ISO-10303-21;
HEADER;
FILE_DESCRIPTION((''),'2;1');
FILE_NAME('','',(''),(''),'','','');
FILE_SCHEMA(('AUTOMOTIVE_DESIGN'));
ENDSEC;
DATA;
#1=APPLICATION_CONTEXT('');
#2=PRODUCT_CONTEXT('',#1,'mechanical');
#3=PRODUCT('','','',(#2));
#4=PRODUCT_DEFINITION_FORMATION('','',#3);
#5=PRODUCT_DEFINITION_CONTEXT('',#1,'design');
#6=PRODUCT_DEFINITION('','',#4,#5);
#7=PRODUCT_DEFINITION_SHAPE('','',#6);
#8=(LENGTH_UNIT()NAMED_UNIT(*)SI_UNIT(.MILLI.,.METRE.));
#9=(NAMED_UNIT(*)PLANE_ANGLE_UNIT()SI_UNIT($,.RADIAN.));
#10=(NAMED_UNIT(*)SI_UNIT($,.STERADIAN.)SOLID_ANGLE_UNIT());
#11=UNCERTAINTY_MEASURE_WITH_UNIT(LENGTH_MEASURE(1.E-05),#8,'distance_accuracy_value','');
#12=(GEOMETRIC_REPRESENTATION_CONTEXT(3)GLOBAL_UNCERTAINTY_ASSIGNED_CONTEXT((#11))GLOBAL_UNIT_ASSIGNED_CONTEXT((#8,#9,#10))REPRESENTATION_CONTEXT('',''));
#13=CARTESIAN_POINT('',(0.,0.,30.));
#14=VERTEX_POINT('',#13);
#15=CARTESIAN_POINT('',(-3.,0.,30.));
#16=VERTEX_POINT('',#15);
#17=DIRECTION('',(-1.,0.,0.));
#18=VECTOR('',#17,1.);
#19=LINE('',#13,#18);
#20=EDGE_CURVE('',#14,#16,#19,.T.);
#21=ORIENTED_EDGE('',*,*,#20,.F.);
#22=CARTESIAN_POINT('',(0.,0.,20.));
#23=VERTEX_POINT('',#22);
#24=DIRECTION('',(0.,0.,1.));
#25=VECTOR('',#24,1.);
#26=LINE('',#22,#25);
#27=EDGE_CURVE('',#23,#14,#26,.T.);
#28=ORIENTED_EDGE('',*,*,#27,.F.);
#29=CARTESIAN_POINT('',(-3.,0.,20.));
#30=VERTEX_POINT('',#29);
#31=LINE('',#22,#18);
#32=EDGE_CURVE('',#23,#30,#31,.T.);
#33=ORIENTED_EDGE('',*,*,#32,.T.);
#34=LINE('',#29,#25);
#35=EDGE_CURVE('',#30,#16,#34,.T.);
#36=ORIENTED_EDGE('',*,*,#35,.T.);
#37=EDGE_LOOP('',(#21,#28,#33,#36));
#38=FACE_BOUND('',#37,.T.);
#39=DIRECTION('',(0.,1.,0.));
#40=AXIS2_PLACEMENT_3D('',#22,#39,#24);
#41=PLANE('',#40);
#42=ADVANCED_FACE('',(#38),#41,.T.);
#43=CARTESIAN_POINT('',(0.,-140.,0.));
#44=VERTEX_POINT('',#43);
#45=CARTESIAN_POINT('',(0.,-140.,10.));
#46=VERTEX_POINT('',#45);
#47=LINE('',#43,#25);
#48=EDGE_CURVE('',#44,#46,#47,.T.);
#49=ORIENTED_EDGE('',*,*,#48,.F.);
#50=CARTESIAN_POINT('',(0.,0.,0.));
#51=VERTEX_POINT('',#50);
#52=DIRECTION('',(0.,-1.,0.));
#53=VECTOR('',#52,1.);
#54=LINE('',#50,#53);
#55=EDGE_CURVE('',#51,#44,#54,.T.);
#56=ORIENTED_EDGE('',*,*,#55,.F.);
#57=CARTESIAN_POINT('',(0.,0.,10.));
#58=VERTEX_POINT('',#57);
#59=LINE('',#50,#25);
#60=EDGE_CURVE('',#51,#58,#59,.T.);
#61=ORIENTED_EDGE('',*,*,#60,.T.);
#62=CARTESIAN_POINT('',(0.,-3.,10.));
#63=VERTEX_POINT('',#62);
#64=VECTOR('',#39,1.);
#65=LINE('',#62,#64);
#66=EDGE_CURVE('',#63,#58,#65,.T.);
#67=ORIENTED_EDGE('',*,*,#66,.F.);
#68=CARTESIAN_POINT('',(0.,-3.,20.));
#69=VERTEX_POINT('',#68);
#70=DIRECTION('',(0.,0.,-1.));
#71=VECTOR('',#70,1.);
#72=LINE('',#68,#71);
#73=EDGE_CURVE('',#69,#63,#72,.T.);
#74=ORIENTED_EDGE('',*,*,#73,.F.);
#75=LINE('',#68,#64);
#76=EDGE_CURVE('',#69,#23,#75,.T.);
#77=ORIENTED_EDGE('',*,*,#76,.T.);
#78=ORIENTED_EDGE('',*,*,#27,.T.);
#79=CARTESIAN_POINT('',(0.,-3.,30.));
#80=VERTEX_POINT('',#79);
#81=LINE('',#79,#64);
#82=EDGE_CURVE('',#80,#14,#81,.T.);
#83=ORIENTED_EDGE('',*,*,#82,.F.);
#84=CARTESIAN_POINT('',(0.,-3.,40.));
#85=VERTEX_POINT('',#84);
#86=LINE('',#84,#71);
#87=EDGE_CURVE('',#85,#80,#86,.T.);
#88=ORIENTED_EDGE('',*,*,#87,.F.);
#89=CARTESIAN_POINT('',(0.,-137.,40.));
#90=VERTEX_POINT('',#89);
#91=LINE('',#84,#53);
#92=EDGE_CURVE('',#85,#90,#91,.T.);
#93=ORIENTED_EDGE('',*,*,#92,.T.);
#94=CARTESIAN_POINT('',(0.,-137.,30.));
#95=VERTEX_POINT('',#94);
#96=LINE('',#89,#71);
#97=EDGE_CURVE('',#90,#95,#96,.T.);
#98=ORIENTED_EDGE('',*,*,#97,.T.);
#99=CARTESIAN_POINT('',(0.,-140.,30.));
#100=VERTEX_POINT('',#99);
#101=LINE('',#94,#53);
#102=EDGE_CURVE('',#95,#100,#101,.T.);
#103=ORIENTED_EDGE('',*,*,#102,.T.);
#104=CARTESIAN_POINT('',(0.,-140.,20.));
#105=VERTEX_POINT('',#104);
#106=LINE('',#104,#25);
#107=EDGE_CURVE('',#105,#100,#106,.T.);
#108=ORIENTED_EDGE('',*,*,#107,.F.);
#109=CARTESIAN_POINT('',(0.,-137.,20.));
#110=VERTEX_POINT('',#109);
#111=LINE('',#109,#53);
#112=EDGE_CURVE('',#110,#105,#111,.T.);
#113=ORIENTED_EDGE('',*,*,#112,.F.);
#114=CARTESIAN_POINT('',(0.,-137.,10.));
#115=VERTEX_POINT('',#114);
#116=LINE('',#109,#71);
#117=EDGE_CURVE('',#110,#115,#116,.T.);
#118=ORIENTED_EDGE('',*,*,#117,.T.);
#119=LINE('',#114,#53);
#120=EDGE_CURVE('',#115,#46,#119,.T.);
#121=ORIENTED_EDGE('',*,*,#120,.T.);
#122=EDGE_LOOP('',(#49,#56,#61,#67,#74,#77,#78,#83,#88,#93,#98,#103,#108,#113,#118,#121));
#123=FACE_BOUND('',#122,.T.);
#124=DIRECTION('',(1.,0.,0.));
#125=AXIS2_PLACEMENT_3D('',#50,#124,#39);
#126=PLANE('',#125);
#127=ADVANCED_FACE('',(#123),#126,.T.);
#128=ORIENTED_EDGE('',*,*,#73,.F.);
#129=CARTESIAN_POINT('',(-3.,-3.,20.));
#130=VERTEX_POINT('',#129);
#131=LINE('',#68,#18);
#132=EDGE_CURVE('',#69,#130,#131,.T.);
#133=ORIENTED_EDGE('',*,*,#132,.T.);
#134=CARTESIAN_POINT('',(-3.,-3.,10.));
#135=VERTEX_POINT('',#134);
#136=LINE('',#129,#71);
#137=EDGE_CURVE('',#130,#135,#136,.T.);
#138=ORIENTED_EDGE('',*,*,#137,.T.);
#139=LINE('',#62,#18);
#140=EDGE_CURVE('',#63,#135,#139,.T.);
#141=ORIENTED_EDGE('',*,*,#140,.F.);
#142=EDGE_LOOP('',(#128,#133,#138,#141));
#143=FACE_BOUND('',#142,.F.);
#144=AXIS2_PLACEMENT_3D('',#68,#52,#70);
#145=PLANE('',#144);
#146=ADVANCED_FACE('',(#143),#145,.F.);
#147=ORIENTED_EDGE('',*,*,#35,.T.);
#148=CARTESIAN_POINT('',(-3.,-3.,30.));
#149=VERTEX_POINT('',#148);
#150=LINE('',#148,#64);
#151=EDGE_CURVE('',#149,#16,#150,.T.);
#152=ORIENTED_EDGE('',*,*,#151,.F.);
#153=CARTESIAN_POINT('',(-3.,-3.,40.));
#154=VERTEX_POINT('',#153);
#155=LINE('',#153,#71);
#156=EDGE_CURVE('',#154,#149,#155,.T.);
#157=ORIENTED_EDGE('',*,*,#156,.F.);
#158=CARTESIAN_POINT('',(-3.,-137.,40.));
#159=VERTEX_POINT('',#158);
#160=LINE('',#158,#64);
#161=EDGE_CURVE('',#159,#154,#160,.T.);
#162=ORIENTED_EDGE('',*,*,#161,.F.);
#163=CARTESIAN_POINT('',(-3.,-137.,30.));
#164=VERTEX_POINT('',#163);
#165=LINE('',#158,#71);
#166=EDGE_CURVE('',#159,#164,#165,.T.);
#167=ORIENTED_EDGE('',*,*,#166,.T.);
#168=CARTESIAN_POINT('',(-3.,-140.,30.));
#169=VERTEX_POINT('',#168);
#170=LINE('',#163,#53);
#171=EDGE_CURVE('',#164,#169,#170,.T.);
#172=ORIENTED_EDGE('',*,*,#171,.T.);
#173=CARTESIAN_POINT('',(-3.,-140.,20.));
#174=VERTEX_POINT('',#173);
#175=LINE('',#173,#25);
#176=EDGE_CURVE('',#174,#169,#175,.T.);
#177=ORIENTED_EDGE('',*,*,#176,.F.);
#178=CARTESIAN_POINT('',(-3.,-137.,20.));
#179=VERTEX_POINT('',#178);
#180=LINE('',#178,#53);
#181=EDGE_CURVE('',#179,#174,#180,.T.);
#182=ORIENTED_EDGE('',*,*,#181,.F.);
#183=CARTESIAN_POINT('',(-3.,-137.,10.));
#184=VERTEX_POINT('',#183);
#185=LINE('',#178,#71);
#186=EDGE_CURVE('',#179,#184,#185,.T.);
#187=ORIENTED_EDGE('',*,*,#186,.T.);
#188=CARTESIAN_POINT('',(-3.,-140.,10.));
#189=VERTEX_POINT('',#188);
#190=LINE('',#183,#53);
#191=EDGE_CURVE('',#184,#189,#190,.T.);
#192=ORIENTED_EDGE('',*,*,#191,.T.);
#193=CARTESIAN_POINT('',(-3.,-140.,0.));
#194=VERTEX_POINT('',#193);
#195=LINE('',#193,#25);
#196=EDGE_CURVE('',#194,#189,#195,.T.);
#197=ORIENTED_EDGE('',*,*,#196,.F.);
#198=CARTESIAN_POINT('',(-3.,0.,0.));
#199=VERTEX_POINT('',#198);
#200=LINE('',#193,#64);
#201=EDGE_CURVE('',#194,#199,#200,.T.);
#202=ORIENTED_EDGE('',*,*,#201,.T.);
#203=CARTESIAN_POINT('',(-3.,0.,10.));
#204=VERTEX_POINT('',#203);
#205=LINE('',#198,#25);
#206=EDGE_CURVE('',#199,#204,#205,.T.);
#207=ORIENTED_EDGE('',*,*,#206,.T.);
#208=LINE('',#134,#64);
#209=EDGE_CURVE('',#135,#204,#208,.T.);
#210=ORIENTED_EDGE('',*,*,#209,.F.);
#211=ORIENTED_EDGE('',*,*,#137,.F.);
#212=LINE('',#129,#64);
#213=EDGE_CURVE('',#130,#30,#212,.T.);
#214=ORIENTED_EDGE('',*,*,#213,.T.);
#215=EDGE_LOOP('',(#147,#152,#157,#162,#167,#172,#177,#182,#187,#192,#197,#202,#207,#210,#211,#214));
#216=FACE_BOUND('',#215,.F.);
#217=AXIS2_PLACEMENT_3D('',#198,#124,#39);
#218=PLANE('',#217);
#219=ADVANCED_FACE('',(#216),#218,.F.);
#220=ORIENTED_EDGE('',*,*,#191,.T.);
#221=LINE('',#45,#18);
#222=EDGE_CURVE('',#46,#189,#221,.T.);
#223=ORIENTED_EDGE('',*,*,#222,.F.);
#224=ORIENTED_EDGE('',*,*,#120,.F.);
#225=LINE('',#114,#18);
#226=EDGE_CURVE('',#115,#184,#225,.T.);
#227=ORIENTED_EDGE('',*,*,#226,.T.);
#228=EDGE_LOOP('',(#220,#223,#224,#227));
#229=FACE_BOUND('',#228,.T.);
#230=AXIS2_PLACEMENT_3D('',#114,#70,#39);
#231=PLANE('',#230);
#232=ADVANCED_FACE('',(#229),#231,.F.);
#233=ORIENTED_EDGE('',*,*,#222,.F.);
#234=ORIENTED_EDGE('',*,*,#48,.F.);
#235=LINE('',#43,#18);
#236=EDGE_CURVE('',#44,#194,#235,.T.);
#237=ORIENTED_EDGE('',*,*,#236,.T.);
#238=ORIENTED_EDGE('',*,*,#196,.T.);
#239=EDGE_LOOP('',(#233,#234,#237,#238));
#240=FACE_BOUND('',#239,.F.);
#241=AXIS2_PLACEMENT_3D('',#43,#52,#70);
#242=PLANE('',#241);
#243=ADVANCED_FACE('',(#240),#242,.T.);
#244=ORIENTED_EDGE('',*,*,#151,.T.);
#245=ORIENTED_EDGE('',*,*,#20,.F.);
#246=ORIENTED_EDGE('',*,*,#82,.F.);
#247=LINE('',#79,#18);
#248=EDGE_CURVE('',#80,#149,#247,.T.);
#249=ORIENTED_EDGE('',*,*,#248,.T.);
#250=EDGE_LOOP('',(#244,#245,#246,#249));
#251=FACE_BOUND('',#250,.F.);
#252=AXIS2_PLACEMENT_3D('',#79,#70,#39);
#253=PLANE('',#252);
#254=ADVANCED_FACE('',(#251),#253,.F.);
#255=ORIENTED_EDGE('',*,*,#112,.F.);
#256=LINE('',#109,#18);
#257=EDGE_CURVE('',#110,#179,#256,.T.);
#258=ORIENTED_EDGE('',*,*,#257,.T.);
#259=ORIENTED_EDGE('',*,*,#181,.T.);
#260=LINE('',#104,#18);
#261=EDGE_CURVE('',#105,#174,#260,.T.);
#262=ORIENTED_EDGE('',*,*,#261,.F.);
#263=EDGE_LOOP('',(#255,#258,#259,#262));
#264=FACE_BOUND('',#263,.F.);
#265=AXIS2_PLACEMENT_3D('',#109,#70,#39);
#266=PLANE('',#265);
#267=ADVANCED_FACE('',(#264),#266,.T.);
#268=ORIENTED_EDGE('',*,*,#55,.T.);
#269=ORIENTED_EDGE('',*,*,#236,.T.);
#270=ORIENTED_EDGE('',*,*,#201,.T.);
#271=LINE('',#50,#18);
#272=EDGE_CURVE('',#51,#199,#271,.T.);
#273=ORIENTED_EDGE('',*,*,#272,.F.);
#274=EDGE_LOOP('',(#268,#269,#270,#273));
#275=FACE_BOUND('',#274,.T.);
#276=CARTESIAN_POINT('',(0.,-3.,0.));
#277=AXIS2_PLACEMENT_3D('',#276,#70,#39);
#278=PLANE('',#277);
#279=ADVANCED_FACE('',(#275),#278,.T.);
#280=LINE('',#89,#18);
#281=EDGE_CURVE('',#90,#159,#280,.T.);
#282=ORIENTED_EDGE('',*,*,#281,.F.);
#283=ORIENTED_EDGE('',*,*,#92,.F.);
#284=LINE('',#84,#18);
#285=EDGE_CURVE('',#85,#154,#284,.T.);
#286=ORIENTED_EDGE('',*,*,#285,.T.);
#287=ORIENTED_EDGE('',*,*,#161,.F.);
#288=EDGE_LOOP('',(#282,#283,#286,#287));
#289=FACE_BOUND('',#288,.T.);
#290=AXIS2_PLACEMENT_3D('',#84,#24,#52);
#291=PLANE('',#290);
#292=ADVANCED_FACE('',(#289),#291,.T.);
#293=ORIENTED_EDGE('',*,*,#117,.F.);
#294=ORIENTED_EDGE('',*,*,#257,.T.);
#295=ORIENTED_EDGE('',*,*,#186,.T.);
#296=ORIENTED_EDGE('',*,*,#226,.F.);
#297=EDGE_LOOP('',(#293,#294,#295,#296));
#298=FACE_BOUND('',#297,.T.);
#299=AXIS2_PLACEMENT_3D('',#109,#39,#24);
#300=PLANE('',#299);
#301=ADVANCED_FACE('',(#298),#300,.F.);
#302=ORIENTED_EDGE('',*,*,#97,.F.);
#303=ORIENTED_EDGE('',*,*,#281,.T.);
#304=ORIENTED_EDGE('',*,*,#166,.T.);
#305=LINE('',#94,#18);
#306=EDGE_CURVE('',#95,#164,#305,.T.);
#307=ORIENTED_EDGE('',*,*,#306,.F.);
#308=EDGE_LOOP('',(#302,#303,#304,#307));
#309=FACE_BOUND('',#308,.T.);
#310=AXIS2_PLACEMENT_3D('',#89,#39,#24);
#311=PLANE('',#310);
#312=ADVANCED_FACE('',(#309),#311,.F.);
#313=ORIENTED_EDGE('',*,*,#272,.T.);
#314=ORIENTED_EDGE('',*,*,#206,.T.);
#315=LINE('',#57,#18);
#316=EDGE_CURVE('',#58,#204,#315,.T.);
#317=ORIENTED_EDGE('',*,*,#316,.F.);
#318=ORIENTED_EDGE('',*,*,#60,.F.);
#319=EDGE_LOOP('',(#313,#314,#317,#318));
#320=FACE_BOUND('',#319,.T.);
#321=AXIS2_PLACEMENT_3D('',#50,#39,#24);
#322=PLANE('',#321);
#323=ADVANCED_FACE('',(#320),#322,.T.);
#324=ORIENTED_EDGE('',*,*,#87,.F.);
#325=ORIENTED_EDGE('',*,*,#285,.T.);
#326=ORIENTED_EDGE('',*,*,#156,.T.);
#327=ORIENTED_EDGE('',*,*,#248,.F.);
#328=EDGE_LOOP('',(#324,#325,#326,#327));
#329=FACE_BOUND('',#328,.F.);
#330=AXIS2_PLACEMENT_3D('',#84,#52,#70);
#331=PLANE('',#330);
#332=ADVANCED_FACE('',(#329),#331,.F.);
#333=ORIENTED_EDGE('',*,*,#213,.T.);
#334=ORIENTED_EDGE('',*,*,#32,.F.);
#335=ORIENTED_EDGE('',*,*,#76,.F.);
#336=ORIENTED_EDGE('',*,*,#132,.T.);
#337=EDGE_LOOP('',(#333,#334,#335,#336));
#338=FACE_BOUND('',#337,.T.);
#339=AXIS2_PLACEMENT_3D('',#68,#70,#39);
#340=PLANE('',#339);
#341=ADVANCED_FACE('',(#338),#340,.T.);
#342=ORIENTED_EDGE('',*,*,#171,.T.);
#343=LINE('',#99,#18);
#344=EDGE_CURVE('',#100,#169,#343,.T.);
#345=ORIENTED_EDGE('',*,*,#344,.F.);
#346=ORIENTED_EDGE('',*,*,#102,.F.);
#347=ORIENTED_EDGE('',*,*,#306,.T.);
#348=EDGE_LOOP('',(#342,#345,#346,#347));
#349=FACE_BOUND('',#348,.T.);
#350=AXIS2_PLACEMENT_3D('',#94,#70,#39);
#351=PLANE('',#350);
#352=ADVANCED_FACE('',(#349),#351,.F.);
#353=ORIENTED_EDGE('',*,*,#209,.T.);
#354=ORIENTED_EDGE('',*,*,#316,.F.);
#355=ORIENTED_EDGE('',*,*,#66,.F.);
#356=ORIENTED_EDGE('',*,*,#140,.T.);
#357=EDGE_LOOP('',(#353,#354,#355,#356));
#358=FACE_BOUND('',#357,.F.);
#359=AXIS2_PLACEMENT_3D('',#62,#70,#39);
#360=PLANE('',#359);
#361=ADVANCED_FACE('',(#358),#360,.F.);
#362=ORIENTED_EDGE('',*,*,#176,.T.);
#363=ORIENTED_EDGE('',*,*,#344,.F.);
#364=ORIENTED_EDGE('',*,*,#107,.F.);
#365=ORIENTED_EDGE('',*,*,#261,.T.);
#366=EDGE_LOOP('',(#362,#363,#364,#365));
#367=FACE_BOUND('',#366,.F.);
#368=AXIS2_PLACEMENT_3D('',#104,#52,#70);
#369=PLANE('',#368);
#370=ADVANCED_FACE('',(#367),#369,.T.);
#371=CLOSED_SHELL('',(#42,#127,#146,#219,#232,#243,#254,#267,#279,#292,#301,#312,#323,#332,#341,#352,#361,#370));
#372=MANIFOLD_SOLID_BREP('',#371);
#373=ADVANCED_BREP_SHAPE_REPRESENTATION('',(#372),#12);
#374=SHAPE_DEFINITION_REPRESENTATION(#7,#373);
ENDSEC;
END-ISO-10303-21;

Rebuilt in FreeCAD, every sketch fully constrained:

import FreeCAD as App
import Part
import Sketcher

V = App.Vector
Q = App.Units.Quantity

doc = App.newDocument("Part")
body = doc.addObject("PartDesign::Body", "Body")

# Sketch on YZ plane
sketch1 = doc.addObject("Sketcher::SketchObject", "Sketch")
body.addObject(sketch1)
sketch1.AttachmentSupport = (doc.YZ_Plane, [""])
sketch1.MapMode = "FlatFace"
sketch1.addGeometry([
    Part.LineSegment(V(0, 0, 0), V(0, 10, 0)),  # 0
    Part.LineSegment(V(0, 10, 0), V(-3, 10, 0)),  # 1
    Part.LineSegment(V(-3, 10, 0), V(-3, 20, 0)),  # 2
    Part.LineSegment(V(-3, 20, 0), V(0, 20, 0)),  # 3
    Part.LineSegment(V(0, 20, 0), V(0, 30, 0)),  # 4
    Part.LineSegment(V(0, 30, 0), V(-3, 30, 0)),  # 5
    Part.LineSegment(V(-3, 30, 0), V(-3, 40, 0)),  # 6
    Part.LineSegment(V(-3, 40, 0), V(-70, 40, 0)),  # 7
    Part.LineSegment(V(-70, 40, 0), V(-70, 0, 0)),  # 8
    Part.LineSegment(V(-70, 0, 0), V(0, 0, 0)),  # 9
], False)
sketch1.addConstraint([
    Sketcher.Constraint("Coincident", 0, 2, 1, 1),
    Sketcher.Constraint("Coincident", 1, 2, 2, 1),
    Sketcher.Constraint("Coincident", 2, 2, 3, 1),
    Sketcher.Constraint("Coincident", 3, 2, 4, 1),
    Sketcher.Constraint("Coincident", 4, 2, 5, 1),
    Sketcher.Constraint("Coincident", 5, 2, 6, 1),
    Sketcher.Constraint("Coincident", 6, 2, 7, 1),
    Sketcher.Constraint("Coincident", 7, 2, 8, 1),
    Sketcher.Constraint("Coincident", 8, 2, 9, 1),
    Sketcher.Constraint("Coincident", 9, 2, 0, 1),
    Sketcher.Constraint("Vertical", 0),
    Sketcher.Constraint("Horizontal", 1),
    Sketcher.Constraint("Vertical", 2),
    Sketcher.Constraint("Horizontal", 3),
    Sketcher.Constraint("Vertical", 4),
    Sketcher.Constraint("Horizontal", 5),
    Sketcher.Constraint("Vertical", 6),
    Sketcher.Constraint("Horizontal", 7),
    Sketcher.Constraint("Vertical", 8),
    Sketcher.Constraint("Horizontal", 9),
    Sketcher.Constraint("Coincident", 9, 2, -1, 1),
    Sketcher.Constraint("PointOnObject", 3, 2, -2),
    Sketcher.Constraint("Vertical", 2, 2, 5, 2),
    Sketcher.Constraint("Equal", 0, 2),
    Sketcher.Constraint("Equal", 2, 4),
    Sketcher.Constraint("Equal", 4, 6),
    Sketcher.Constraint("DistanceX", 1, 2, 1, 1, Q("3 mm")),
    Sketcher.Constraint("DistanceX", 9, 1, 9, 2, Q("70 mm")),
    Sketcher.Constraint("DistanceY", 0, 1, 0, 2, Q("10 mm")),
])
pad1 = doc.addObject("PartDesign::Pad", "Pad")
body.addObject(pad1)
pad1.Profile = sketch1
pad1.Length = 3
pad1.Reversed = True
doc.recompute()

datumplane = doc.addObject("PartDesign::Plane", "DatumPlane")
body.addObject(datumplane)
datumplane.AttachmentSupport = (doc.XZ_Plane, [""])
datumplane.MapMode = "FlatFace"
datumplane.AttachmentOffset = App.Placement(V(0, 0, 70), App.Rotation())
mirrored = doc.addObject("PartDesign::Mirrored", "Mirrored")
body.addObject(mirrored)
mirrored.Originals = [pad1]
mirrored.MirrorPlane = (datumplane, [""])
body.Tip = mirrored

doc.recompute()
